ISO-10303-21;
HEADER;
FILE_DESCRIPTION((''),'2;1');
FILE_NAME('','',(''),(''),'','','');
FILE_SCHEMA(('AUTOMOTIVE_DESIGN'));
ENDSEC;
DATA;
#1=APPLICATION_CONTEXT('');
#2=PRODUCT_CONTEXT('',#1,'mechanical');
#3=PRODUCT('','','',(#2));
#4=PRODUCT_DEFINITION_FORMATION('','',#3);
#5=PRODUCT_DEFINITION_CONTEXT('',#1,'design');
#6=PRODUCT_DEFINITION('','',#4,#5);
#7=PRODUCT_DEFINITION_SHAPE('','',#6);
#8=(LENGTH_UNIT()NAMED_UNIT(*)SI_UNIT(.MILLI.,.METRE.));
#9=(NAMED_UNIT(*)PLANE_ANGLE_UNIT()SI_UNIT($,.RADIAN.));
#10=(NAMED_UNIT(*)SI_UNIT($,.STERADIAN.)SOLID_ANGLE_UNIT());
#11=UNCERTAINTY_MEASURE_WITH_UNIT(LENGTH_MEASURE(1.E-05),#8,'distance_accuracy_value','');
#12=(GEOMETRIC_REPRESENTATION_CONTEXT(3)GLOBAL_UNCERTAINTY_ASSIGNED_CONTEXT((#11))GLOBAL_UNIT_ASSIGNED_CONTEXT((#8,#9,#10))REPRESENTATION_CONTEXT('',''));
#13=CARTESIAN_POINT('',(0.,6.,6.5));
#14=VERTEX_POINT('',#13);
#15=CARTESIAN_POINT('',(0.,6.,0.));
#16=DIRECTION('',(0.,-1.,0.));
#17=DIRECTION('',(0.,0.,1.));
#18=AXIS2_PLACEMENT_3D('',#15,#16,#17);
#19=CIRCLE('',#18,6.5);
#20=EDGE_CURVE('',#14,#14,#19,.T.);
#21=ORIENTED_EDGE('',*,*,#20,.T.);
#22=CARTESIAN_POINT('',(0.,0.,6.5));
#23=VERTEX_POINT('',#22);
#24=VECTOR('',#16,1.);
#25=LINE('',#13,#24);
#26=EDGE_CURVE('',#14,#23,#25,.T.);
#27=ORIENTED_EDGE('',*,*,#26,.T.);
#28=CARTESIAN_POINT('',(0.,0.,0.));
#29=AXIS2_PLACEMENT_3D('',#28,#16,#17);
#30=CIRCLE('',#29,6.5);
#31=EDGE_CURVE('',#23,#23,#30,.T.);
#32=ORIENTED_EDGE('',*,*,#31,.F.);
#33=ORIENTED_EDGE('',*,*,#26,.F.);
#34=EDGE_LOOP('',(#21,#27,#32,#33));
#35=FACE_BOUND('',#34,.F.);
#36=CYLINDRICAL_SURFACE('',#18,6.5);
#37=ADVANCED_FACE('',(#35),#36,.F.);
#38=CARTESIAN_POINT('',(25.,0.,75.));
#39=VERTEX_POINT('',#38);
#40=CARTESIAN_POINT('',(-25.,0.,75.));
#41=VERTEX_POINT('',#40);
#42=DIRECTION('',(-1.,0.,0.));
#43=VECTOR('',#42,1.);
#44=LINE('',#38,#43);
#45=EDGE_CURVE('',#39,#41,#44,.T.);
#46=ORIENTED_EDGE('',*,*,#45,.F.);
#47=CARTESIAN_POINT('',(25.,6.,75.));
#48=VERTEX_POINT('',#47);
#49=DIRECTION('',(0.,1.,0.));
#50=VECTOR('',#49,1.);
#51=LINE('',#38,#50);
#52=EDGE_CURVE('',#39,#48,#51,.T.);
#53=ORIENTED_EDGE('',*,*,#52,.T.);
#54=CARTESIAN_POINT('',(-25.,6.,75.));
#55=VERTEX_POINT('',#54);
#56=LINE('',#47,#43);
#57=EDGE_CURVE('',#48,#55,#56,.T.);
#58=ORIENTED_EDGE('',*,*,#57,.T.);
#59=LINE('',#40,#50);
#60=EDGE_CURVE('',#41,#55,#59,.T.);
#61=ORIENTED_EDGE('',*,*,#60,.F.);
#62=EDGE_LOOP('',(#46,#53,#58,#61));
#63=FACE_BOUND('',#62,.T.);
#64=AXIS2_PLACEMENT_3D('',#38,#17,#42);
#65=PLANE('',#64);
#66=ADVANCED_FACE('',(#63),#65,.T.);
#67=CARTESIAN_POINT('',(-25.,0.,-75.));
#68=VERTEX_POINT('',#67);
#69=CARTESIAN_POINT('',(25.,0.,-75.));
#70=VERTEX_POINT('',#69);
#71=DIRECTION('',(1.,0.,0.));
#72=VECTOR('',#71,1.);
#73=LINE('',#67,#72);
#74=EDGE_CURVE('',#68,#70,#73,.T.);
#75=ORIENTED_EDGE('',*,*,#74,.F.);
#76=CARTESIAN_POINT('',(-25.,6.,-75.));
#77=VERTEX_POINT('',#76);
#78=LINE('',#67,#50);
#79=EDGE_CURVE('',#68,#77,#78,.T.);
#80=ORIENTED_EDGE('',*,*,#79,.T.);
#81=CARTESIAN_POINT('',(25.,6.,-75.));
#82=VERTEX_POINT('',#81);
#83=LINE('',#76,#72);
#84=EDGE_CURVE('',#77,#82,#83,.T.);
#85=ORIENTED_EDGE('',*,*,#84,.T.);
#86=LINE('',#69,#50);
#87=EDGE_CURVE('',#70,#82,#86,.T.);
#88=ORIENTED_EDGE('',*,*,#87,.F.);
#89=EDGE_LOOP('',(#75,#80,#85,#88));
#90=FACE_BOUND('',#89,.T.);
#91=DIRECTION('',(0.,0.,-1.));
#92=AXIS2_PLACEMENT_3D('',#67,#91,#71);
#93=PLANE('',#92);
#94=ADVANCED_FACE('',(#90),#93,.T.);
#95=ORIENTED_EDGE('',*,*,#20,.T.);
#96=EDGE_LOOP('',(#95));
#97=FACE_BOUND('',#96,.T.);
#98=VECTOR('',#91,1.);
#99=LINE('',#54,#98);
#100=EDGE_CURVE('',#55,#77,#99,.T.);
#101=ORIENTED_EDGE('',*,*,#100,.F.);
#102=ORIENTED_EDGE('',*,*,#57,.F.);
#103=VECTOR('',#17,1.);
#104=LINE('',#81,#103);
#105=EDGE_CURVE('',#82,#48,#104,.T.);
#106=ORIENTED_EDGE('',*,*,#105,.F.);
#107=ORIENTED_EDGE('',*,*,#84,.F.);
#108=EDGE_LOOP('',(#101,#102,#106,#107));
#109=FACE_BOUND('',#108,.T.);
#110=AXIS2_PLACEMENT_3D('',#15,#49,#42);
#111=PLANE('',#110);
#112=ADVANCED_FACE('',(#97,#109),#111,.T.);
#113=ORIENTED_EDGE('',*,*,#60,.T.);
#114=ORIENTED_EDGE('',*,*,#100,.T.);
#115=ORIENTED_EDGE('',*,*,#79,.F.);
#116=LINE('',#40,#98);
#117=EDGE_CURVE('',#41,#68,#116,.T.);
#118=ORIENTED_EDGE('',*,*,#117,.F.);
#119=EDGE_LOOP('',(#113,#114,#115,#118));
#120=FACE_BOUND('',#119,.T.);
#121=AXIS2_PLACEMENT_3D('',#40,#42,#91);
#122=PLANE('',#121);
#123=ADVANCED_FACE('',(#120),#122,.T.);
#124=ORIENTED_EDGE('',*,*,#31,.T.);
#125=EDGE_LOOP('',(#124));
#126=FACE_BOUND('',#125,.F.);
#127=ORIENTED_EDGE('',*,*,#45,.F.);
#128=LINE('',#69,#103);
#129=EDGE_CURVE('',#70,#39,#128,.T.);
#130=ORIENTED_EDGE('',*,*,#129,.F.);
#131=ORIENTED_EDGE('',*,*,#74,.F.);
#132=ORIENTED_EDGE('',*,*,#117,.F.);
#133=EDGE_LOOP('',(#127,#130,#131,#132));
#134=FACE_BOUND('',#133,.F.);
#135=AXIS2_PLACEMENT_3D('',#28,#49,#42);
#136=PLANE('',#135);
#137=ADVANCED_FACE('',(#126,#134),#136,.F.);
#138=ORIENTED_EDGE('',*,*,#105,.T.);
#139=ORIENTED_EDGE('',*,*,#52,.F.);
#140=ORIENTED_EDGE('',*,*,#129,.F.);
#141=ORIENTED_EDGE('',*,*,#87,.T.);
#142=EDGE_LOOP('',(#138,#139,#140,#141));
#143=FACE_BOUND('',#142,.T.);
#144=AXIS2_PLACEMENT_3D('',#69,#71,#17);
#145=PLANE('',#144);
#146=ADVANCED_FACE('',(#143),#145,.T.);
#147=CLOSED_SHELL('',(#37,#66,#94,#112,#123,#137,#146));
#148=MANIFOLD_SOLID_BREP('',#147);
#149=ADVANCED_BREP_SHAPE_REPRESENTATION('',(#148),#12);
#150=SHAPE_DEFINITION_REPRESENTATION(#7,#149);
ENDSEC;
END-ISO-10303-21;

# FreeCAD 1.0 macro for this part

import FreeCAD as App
import Part
import Sketcher

V = App.Vector


def add_polygon(sketch, points):
    """Adds a closed chain of lines whose ends are joined by coincident constraints."""
    first, n = sketch.GeometryCount, len(points)
    for a, b in zip(points, points[1:] + points[:1]):
        sketch.addGeometry(Part.LineSegment(App.Vector(*a, 0), App.Vector(*b, 0)), False)
    for i in range(n):
        sketch.addConstraint(Sketcher.Constraint("Coincident", first + i, 2, first + (i + 1) % n, 1))

doc = App.newDocument("Part")
body = doc.addObject("PartDesign::Body", "Body")

sketch1 = body.newObject("Sketcher::SketchObject", "Sketch")
sketch1.AttachmentSupport = (doc.getObject("XZ_Plane"), [""])
sketch1.MapMode = "FlatFace"
add_polygon(sketch1, [(-25, 75), (25, 75), (25, -75), (-25, -75)])
sketch1.addConstraint(Sketcher.Constraint("Horizontal", 0))
sketch1.addConstraint(Sketcher.Constraint("Vertical", 1))
sketch1.addConstraint(Sketcher.Constraint("Horizontal", 2))
sketch1.addConstraint(Sketcher.Constraint("Vertical", 3))
sketch1.addConstraint(Sketcher.Constraint("Symmetric", 0, 2, 2, 2, -1, 1))
sketch1.addConstraint(Sketcher.Constraint("DistanceX", 0, 1, 0, 2, 50.0))
sketch1.addConstraint(Sketcher.Constraint("DistanceY", 1, 2, 1, 1, 150.0))
pad1 = body.newObject("PartDesign::Pad", "Pad")
pad1.Profile = sketch1
pad1.Length = 6
pad1.Reversed = True

sketch2 = body.newObject("Sketcher::SketchObject", "Sketch001")
sketch2.AttachmentSupport = (doc.getObject("XZ_Plane"), [""])
sketch2.MapMode = "FlatFace"
sketch2.AttachmentOffset = App.Placement(V(0, 0, -6), App.Rotation())
sketch2.addGeometry(Part.Circle(V(0, 0, 0), V(0, 0, 1), 6), False)
sketch2.addConstraint(Sketcher.Constraint("Coincident", 0, 3, -1, 1))
sketch2.addConstraint(Sketcher.Constraint("Diameter", 0, 13.0))
doc.recompute()
hole = body.newObject("PartDesign::Hole", "Hole")
hole.Profile = sketch2
hole.ThreadType = "None"
hole.Diameter = 13
hole.DepthType = "ThroughAll"
hole.Reversed = True

doc.recompute()
